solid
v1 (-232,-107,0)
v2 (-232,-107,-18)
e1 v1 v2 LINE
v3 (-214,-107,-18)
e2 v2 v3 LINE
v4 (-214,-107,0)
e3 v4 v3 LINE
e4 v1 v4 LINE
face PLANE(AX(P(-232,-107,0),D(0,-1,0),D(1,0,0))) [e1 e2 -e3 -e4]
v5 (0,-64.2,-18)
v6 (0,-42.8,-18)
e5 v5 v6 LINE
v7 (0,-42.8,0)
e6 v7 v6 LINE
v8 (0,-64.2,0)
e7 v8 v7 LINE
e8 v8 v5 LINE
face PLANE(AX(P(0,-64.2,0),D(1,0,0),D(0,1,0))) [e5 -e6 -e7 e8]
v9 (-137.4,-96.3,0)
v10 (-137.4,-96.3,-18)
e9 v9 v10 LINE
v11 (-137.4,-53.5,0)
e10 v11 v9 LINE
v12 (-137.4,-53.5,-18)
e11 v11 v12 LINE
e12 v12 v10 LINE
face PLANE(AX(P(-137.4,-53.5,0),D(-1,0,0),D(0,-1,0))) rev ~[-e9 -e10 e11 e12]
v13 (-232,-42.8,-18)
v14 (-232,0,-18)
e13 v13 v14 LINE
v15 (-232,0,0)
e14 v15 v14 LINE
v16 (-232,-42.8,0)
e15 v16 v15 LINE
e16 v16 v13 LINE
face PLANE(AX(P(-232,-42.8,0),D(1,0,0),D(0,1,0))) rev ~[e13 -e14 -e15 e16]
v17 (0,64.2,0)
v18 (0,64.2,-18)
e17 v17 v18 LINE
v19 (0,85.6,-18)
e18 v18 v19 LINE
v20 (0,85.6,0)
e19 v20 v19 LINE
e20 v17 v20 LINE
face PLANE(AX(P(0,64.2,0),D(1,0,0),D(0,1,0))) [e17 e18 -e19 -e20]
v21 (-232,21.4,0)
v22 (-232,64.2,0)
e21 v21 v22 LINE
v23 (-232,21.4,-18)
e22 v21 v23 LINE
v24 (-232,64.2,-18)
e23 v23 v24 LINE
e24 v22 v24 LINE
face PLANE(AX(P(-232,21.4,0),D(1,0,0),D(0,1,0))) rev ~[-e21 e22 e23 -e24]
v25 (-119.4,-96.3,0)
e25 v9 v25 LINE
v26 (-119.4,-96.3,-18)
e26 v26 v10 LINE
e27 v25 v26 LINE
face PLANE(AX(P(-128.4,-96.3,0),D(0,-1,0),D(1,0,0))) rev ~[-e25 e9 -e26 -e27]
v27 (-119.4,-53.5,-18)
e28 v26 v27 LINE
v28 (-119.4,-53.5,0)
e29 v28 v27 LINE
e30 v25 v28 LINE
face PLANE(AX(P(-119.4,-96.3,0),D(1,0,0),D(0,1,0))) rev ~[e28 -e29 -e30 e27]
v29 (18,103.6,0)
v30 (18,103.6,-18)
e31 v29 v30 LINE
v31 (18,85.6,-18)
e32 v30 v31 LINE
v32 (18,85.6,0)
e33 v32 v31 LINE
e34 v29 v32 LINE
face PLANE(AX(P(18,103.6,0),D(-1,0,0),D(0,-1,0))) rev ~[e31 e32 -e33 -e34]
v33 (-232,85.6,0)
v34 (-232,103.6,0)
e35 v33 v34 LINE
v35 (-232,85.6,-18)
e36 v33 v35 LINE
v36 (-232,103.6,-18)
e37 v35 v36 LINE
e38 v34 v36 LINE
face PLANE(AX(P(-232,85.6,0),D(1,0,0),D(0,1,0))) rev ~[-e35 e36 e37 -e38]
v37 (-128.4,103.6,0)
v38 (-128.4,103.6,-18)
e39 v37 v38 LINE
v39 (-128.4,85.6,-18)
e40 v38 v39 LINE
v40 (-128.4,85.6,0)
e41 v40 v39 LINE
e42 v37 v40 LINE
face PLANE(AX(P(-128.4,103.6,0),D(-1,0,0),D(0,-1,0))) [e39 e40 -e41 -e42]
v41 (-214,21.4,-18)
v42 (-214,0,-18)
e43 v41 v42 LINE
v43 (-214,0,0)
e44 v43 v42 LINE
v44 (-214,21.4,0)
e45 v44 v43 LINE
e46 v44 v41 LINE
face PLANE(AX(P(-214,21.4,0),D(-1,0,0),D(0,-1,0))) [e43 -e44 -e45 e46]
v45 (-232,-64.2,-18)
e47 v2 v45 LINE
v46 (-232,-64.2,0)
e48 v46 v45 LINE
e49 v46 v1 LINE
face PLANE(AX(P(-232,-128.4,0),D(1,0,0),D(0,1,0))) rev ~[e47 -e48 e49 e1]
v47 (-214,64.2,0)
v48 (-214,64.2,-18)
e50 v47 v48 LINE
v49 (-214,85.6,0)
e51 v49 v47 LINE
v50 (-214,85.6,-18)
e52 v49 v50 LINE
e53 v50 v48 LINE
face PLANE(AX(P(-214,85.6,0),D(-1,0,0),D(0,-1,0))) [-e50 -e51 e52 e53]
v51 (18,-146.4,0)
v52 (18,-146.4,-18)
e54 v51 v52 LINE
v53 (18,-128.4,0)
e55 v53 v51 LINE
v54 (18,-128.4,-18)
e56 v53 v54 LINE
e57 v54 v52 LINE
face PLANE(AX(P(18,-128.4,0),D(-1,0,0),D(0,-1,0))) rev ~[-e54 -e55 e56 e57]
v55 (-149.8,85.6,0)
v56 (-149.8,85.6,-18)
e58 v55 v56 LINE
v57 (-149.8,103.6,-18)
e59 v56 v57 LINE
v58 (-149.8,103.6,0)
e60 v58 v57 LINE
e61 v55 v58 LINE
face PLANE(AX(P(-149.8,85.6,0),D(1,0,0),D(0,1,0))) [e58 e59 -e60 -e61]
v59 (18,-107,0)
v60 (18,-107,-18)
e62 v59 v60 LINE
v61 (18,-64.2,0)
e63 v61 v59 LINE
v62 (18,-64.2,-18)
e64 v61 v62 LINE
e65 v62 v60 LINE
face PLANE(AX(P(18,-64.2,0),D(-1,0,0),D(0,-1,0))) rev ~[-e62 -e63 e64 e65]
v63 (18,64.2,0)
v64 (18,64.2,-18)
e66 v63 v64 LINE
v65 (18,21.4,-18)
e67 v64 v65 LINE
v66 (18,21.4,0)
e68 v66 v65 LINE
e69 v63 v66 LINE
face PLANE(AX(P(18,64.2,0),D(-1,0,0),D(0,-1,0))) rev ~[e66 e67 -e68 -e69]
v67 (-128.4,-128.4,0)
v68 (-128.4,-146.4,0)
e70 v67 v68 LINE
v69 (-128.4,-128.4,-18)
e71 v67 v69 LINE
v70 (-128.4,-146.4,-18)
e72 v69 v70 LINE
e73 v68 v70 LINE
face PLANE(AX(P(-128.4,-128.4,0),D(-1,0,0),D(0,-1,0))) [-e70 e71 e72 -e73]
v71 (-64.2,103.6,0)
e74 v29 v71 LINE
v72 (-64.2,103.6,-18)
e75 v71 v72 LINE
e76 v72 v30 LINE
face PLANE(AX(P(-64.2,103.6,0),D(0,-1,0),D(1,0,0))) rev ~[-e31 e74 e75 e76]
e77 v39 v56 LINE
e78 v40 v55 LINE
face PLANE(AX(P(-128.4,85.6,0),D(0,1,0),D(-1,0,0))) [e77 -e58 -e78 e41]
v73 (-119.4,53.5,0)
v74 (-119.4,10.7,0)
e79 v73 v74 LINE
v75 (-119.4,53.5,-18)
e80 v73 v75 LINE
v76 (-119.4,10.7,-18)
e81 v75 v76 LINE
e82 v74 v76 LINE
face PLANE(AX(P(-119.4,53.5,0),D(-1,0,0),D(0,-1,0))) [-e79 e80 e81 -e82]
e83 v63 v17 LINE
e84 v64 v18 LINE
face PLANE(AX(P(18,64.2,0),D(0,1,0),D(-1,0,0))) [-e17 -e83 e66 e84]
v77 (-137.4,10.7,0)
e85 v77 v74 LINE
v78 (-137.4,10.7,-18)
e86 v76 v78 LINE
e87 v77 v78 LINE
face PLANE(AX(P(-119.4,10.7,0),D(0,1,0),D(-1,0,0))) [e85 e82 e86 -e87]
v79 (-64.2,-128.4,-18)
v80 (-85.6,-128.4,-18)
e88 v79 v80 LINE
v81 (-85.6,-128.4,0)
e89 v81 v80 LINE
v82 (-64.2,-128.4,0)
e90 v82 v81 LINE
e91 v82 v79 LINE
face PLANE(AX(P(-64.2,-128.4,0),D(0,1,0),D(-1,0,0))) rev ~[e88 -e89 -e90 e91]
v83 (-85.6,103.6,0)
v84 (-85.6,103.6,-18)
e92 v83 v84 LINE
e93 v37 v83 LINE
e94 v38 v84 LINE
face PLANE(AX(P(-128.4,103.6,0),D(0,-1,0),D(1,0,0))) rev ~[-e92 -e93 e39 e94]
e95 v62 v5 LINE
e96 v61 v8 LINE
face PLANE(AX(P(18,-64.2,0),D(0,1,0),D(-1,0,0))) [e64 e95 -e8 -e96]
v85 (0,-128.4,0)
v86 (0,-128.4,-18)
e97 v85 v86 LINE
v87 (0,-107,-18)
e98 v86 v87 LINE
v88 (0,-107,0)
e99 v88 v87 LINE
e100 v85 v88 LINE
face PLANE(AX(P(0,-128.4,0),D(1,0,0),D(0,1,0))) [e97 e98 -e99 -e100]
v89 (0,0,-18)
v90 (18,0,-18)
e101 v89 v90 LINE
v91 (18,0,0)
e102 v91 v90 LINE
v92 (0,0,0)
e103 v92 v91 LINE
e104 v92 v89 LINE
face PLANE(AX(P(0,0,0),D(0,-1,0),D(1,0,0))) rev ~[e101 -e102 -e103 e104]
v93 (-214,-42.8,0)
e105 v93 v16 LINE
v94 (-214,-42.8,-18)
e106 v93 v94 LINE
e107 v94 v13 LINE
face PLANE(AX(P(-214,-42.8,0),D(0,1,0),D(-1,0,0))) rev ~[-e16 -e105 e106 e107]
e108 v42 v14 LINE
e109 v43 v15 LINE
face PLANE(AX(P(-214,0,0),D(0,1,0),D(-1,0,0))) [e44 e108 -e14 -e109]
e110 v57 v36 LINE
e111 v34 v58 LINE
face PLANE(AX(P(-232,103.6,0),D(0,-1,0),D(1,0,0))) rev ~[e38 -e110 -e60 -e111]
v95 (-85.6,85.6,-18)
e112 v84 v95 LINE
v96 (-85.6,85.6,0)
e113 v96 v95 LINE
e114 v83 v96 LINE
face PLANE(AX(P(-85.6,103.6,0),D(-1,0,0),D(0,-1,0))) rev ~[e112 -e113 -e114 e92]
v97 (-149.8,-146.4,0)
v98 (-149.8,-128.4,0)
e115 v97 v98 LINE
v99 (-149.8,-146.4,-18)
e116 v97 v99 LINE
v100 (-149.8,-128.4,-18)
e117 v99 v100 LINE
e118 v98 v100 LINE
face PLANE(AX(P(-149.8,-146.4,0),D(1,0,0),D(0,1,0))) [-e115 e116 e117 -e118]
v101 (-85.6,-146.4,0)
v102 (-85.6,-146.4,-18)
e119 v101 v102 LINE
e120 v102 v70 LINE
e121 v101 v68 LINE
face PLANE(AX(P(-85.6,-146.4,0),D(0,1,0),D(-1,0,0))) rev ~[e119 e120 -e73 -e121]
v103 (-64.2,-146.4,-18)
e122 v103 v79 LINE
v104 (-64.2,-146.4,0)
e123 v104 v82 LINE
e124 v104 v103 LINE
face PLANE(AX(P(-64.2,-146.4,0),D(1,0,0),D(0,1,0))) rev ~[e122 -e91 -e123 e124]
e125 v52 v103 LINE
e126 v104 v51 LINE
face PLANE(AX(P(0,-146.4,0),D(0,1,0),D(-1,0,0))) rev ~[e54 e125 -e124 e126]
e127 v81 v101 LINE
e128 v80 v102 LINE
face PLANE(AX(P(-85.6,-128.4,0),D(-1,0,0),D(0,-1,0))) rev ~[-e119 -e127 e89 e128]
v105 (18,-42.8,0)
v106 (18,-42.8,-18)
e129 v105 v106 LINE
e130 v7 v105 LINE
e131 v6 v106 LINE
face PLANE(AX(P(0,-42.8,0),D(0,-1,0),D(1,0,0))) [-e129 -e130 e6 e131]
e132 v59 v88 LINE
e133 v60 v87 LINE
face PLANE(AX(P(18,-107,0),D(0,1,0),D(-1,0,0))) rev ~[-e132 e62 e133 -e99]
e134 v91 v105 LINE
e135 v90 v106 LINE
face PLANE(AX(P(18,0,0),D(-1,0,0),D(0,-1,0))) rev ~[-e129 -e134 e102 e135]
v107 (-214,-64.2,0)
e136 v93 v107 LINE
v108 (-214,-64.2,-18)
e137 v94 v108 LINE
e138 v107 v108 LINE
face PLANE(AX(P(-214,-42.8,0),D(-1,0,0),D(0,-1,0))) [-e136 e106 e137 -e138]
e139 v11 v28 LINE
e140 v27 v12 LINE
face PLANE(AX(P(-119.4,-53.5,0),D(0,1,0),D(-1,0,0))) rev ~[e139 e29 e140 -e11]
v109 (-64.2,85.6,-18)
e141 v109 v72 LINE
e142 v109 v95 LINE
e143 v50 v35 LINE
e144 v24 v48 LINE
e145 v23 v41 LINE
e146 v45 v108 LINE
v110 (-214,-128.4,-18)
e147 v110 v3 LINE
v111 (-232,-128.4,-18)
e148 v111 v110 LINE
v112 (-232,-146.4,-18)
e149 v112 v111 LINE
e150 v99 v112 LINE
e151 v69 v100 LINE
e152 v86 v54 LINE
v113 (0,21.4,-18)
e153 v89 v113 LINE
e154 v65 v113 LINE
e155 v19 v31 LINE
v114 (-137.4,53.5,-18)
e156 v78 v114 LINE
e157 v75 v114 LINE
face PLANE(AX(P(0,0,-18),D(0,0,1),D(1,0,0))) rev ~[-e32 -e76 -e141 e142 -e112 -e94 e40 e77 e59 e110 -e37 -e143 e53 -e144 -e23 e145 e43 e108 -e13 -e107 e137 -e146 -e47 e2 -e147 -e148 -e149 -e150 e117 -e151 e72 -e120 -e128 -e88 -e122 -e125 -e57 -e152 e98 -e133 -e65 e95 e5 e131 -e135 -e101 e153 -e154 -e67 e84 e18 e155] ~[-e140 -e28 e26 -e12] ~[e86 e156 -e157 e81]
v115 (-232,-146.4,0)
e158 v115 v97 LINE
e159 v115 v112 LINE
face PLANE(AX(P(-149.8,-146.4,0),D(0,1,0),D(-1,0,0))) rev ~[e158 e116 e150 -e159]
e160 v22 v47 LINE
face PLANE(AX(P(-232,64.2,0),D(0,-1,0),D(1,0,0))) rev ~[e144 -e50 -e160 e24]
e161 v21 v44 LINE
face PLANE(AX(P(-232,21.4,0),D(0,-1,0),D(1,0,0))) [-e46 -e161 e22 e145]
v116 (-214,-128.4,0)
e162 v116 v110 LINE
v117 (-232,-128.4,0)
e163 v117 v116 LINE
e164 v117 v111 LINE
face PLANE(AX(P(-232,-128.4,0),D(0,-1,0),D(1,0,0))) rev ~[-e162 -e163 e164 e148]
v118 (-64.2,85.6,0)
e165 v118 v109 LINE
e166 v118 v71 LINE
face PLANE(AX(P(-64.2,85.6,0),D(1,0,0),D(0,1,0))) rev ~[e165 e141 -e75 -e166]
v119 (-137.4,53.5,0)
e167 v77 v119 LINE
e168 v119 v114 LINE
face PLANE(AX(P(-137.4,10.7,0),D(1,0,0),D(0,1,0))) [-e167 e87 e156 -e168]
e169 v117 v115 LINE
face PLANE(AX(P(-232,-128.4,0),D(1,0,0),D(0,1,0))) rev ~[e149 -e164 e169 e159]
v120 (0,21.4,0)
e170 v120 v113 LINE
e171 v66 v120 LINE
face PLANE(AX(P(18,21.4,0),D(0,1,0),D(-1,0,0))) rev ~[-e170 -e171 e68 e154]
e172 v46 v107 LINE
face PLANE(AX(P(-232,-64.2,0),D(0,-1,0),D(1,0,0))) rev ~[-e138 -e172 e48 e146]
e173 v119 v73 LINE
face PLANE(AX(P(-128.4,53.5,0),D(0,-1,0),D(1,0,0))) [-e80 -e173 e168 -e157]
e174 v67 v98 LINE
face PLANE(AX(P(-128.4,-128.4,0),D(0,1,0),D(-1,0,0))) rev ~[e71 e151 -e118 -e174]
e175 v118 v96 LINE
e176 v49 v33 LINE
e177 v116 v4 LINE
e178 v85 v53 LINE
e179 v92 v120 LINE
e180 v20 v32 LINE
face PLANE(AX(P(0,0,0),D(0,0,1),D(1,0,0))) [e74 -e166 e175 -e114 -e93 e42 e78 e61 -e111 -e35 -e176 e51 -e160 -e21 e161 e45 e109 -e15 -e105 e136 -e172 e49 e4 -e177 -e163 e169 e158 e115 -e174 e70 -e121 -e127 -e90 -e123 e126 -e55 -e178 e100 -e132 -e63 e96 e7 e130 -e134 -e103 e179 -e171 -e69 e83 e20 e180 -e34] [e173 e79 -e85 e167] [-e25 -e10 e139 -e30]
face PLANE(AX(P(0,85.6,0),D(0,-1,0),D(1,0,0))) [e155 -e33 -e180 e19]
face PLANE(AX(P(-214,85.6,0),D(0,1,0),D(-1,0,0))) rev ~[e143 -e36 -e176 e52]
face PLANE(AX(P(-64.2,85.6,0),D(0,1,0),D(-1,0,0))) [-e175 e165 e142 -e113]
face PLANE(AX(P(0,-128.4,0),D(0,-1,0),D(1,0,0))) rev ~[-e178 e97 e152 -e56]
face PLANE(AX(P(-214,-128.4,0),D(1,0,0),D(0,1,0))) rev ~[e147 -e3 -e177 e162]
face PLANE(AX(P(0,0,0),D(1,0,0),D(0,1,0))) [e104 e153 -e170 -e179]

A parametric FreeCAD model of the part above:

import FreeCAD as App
import Part
import Sketcher

V = App.Vector
Q = App.Units.Quantity


def add_polygon(sketch, points):
    """Adds a closed chain of lines whose ends are joined by coincident constraints."""
    first, n = sketch.GeometryCount, len(points)
    for a, b in zip(points, points[1:] + points[:1]):
        sketch.addGeometry(Part.LineSegment(App.Vector(*a, 0), App.Vector(*b, 0)), False)
    for i in range(n):
        sketch.addConstraint(Sketcher.Constraint("Coincident", first + i, 2, first + (i + 1) % n, 1))

doc = App.newDocument("Part")
body = doc.addObject("PartDesign::Body", "Body")

sketch1 = body.newObject("Sketcher::SketchObject", "Sketch")
sketch1.AttachmentSupport = (doc.getObject("XY_Plane"), [""])
sketch1.MapMode = "FlatFace"
add_polygon(sketch1, [(-232, 103.6), (-232, 85.6), (-214, 85.6), (-214, 64.2), (-232, 64.2), (-232, 21.4), (-214, 21.4), (-214, 0), (-232, 0), (-232, -42.8), (-214, -42.8), (-214, -64.2), (-232, -64.2), (-232, -146.4), (-149.8, -146.4), (-149.8, -128.4), (-128.4, -128.4), (-128.4, -146.4), (-85.6, -146.4), (-85.6, -128.4), (-64.2, -128.4), (-64.2, -146.4), (18, -146.4), (18, -128.4), (0, -128.4), (0, -107), (18, -107), (18, -64.2), (0, -64.2), (0, -42.8), (18, -42.8), (18, 0), (0, 0), (0, 21.4), (18, 21.4), (18, 64.2), (0, 64.2), (0, 85.6), (18, 85.6), (18, 103.6), (-64.2, 103.6), (-64.2, 85.6), (-85.6, 85.6), (-85.6, 103.6), (-128.4, 103.6), (-128.4, 85.6), (-149.8, 85.6), (-149.8, 103.6)])
sketch1.addConstraint(Sketcher.Constraint("Vertical", 0))
sketch1.addConstraint(Sketcher.Constraint("Horizontal", 1))
sketch1.addConstraint(Sketcher.Constraint("Vertical", 2))
sketch1.addConstraint(Sketcher.Constraint("Horizontal", 3))
sketch1.addConstraint(Sketcher.Constraint("Vertical", 4))
sketch1.addConstraint(Sketcher.Constraint("Horizontal", 5))
sketch1.addConstraint(Sketcher.Constraint("Vertical", 6))
sketch1.addConstraint(Sketcher.Constraint("Horizontal", 7))
sketch1.addConstraint(Sketcher.Constraint("Vertical", 8))
sketch1.addConstraint(Sketcher.Constraint("Horizontal", 9))
sketch1.addConstraint(Sketcher.Constraint("Vertical", 10))
sketch1.addConstraint(Sketcher.Constraint("Horizontal", 11))
sketch1.addConstraint(Sketcher.Constraint("Vertical", 12))
sketch1.addConstraint(Sketcher.Constraint("Horizontal", 13))
sketch1.addConstraint(Sketcher.Constraint("Vertical", 14))
sketch1.addConstraint(Sketcher.Constraint("Horizontal", 15))
sketch1.addConstraint(Sketcher.Constraint("Vertical", 16))
sketch1.addConstraint(Sketcher.Constraint("Horizontal", 17))
sketch1.addConstraint(Sketcher.Constraint("Vertical", 18))
sketch1.addConstraint(Sketcher.Constraint("Horizontal", 19))
sketch1.addConstraint(Sketcher.Constraint("Vertical", 20))
sketch1.addConstraint(Sketcher.Constraint("Horizontal", 21))
sketch1.addConstraint(Sketcher.Constraint("Vertical", 22))
sketch1.addConstraint(Sketcher.Constraint("Horizontal", 23))
sketch1.addConstraint(Sketcher.Constraint("Vertical", 24))
sketch1.addConstraint(Sketcher.Constraint("Horizontal", 25))
sketch1.addConstraint(Sketcher.Constraint("Vertical", 26))
sketch1.addConstraint(Sketcher.Constraint("Horizontal", 27))
sketch1.addConstraint(Sketcher.Constraint("Vertical", 28))
sketch1.addConstraint(Sketcher.Constraint("Horizontal", 29))
sketch1.addConstraint(Sketcher.Constraint("Vertical", 30))
sketch1.addConstraint(Sketcher.Constraint("Horizontal", 31))
sketch1.addConstraint(Sketcher.Constraint("Vertical", 32))
sketch1.addConstraint(Sketcher.Constraint("Horizontal", 33))
sketch1.addConstraint(Sketcher.Constraint("Vertical", 34))
sketch1.addConstraint(Sketcher.Constraint("Horizontal", 35))
sketch1.addConstraint(Sketcher.Constraint("Vertical", 36))
sketch1.addConstraint(Sketcher.Constraint("Horizontal", 37))
sketch1.addConstraint(Sketcher.Constraint("Vertical", 38))
sketch1.addConstraint(Sketcher.Constraint("Horizontal", 39))
sketch1.addConstraint(Sketcher.Constraint("Vertical", 40))
sketch1.addConstraint(Sketcher.Constraint("Horizontal", 41))
sketch1.addConstraint(Sketcher.Constraint("Vertical", 42))
sketch1.addConstraint(Sketcher.Constraint("Horizontal", 43))
sketch1.addConstraint(Sketcher.Constraint("Vertical", 44))
sketch1.addConstraint(Sketcher.Constraint("Horizontal", 45))
sketch1.addConstraint(Sketcher.Constraint("Vertical", 46))
sketch1.addConstraint(Sketcher.Constraint("Horizontal", 47))
sketch1.addConstraint(Sketcher.Constraint("Coincident", 31, 2, -1, 1))
sketch1.addConstraint(Sketcher.Constraint("Symmetric", 27, 2, 35, 2, -1, 1))
sketch1.addConstraint(Sketcher.Constraint("Symmetric", 2, 2, 10, 2, -1))
sketch1.addConstraint(Sketcher.Constraint("PointOnObject", 6, 2, -1))
sketch1.addConstraint(Sketcher.Constraint("PointOnObject", 23, 2, -2))
sketch1.addConstraint(Sketcher.Constraint("PointOnObject", 27, 2, -2))
sketch1.addConstraint(Sketcher.Constraint("Horizontal", 13, 2, 16, 2))
sketch1.addConstraint(Sketcher.Constraint("Horizontal", 15, 2, 18, 2))
sketch1.addConstraint(Sketcher.Constraint("Horizontal", 17, 2, 20, 2))
sketch1.addConstraint(Sketcher.Constraint("Horizontal", 19, 2, 22, 2))
sketch1.addConstraint(Sketcher.Constraint("Horizontal", 11, 2, 26, 2))
sketch1.addConstraint(Sketcher.Constraint("Horizontal", 9, 2, 28, 2))
sketch1.addConstraint(Sketcher.Constraint("Horizontal", 5, 2, 32, 2))
sketch1.addConstraint(Sketcher.Constraint("Horizontal", 1, 2, 36, 2))
sketch1.addConstraint(Sketcher.Constraint("Horizontal", 37, 2, 40, 2))
sketch1.addConstraint(Sketcher.Constraint("Horizontal", 39, 2, 42, 2))
sketch1.addConstraint(Sketcher.Constraint("Horizontal", 41, 2, 44, 2))
sketch1.addConstraint(Sketcher.Constraint("Horizontal", 43, 2, 46, 2))
sketch1.addConstraint(Sketcher.Constraint("Vertical", 0, 2, 3, 2))
sketch1.addConstraint(Sketcher.Constraint("Vertical", 2, 2, 5, 2))
sketch1.addConstraint(Sketcher.Constraint("Vertical", 4, 2, 7, 2))
sketch1.addConstraint(Sketcher.Constraint("Vertical", 8, 2, 11, 2))
sketch1.addConstraint(Sketcher.Constraint("Vertical", 22, 2, 25, 2))
sketch1.addConstraint(Sketcher.Constraint("Vertical", 26, 2, 29, 2))
sketch1.addConstraint(Sketcher.Constraint("Vertical", 30, 2, 33, 2))
sketch1.addConstraint(Sketcher.Constraint("Vertical", 34, 2, 37, 2))
sketch1.addConstraint(Sketcher.Constraint("Vertical", 20, 2, 39, 2))
sketch1.addConstraint(Sketcher.Constraint("Vertical", 18, 2, 41, 2))
sketch1.addConstraint(Sketcher.Constraint("Vertical", 16, 2, 43, 2))
sketch1.addConstraint(Sketcher.Constraint("Vertical", 14, 2, 45, 2))
sketch1.addConstraint(Sketcher.Constraint("Equal", 15, 19))
sketch1.addConstraint(Sketcher.Constraint("Equal", 13, 21))
sketch1.addConstraint(Sketcher.Constraint("Equal", 11, 23))
sketch1.addConstraint(Sketcher.Constraint("Equal", 37, 0))
sketch1.addConstraint(Sketcher.Constraint("Equal", 45, 2))
sketch1.addConstraint(Sketcher.Constraint("Equal", 43, 4))
sketch1.addConstraint(Sketcher.Constraint("Equal", 2, 6))
sketch1.addConstraint(Sketcher.Constraint("Equal", 4, 8))
sketch1.addConstraint(Sketcher.Constraint("Equal", 47, 12))
sketch1.addConstraint(Sketcher.Constraint("Equal", 0, 14))
sketch1.addConstraint(Sketcher.Constraint("Equal", 10, 24))
sketch1.addConstraint(Sketcher.Constraint("Equal", 8, 26))
sketch1.addConstraint(Sketcher.Constraint("DistanceX", 15, 1, 15, 2, Q("21.4 mm")))
sketch1.addConstraint(Sketcher.Constraint("DistanceX", 1, 1, 1, 2, Q("18 mm")))
sketch1.addConstraint(Sketcher.Constraint("DistanceX", 13, 1, 13, 2, Q("82.2 mm")))
pad1 = body.newObject("PartDesign::Pad", "Pad")
pad1.Profile = sketch1
pad1.Length = 18
pad1.Reversed = True

sketch2 = body.newObject("Sketcher::SketchObject", "Sketch001")
sketch2.AttachmentSupport = (doc.getObject("XY_Plane"), [""])
sketch2.MapMode = "FlatFace"
add_polygon(sketch2, [(-119.4, 53.5), (-137.4, 53.5), (-137.4, 10.7), (-119.4, 10.7)])
add_polygon(sketch2, [(-119.4, -53.5), (-137.4, -53.5), (-137.4, -96.3), (-119.4, -96.3)])
sketch2.addConstraint(Sketcher.Constraint("Horizontal", 0))
sketch2.addConstraint(Sketcher.Constraint("Vertical", 1))
sketch2.addConstraint(Sketcher.Constraint("Horizontal", 2))
sketch2.addConstraint(Sketcher.Constraint("Vertical", 3))
sketch2.addConstraint(Sketcher.Constraint("Horizontal", 4))
sketch2.addConstraint(Sketcher.Constraint("Vertical", 5))
sketch2.addConstraint(Sketcher.Constraint("Horizontal", 6))
sketch2.addConstraint(Sketcher.Constraint("Vertical", 7))
sketch2.addConstraint(Sketcher.Constraint("Symmetric", 0, 2, 4, 2, -1))
sketch2.addConstraint(Sketcher.Constraint("Vertical", 3, 2, 6, 2))
sketch2.addConstraint(Sketcher.Constraint("Equal", 3, 5))
sketch2.addConstraint(Sketcher.Constraint("DistanceX", 0, 2, 0, 1, Q("18 mm")))
sketch2.addConstraint(Sketcher.Constraint("DistanceY", 1, 2, 1, 1, Q("42.8 mm")))
sketch2.addConstraint(Sketcher.Constraint("DistanceY", 4, 2, 0, 2, Q("107 mm")))
sketch2.addConstraint(Sketcher.Constraint("DistanceX", 0, 2, -1, 1, Q("137.4 mm")))
pocket1 = body.newObject("PartDesign::Pocket", "Pocket")
pocket1.Profile = sketch2
pocket1.Length = 18

sketch3 = body.newObject("Sketcher::SketchObject", "Sketch002")
sketch3.AttachmentSupport = (doc.getObject("XY_Plane"), [""])
sketch3.MapMode = "FlatFace"
add_polygon(sketch3, [(-232, -107), (-232, -128.4), (-214, -128.4), (-214, -107)])
sketch3.addConstraint(Sketcher.Constraint("Vertical", 0))
sketch3.addConstraint(Sketcher.Constraint("Horizontal", 1))
sketch3.addConstraint(Sketcher.Constraint("Vertical", 2))
sketch3.addConstraint(Sketcher.Constraint("Horizontal", 3))
sketch3.addConstraint(Sketcher.Constraint("DistanceX", 1, 1, 1, 2, Q("18 mm")))
sketch3.addConstraint(Sketcher.Constraint("DistanceY", 0, 2, 0, 1, Q("21.4 mm")))
sketch3.addConstraint(Sketcher.Constraint("DistanceX", 0, 2, -1, 1, Q("232 mm")))
sketch3.addConstraint(Sketcher.Constraint("DistanceY", 2, 2, -1, 1, Q("107 mm")))
pocket2 = body.newObject("PartDesign::Pocket", "Pocket001")
pocket2.Profile = sketch3
pocket2.Length = 18

doc.recompute()
